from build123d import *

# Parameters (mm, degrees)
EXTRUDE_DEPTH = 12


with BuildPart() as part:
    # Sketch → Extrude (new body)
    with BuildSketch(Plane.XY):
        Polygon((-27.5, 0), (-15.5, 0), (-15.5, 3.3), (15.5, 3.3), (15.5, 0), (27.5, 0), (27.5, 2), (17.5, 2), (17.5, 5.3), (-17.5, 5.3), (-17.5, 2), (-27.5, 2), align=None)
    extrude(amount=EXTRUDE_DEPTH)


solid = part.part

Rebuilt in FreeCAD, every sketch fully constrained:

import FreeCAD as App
import Part
import Sketcher

doc = App.newDocument("Part")
body = doc.addObject("PartDesign::Body", "Body")

# Sketch on XY plane
sketch1 = body.newObject("Sketcher::SketchObject", "Sketch")
sketch1.AttachmentSupport = (doc.getObject("XY_Plane"), [""])
sketch1.MapMode = "FlatFace"
sketch1.addGeometry([
    Part.LineSegment(App.Vector(-27.5, 0, 0), App.Vector(-15.5, 0, 0)),  # 0
    Part.LineSegment(App.Vector(-15.5, 0, 0), App.Vector(-15.5, 3.3, 0)),  # 1
    Part.LineSegment(App.Vector(-15.5, 3.3, 0), App.Vector(15.5, 3.3, 0)),  # 2
    Part.LineSegment(App.Vector(15.5, 3.3, 0), App.Vector(15.5, 0, 0)),  # 3
    Part.LineSegment(App.Vector(15.5, 0, 0), App.Vector(27.5, 0, 0)),  # 4
    Part.LineSegment(App.Vector(27.5, 0, 0), App.Vector(27.5, 2, 0)),  # 5
    Part.LineSegment(App.Vector(27.5, 2, 0), App.Vector(17.5, 2, 0)),  # 6
    Part.LineSegment(App.Vector(17.5, 2, 0), App.Vector(17.5, 5.3, 0)),  # 7
    Part.LineSegment(App.Vector(17.5, 5.3, 0), App.Vector(-17.5, 5.3, 0)),  # 8
    Part.LineSegment(App.Vector(-17.5, 5.3, 0), App.Vector(-17.5, 2, 0)),  # 9
    Part.LineSegment(App.Vector(-17.5, 2, 0), App.Vector(-27.5, 2, 0)),  # 10
    Part.LineSegment(App.Vector(-27.5, 2, 0), App.Vector(-27.5, 0, 0)),  # 11
], False)
sketch1.addConstraint([
    Sketcher.Constraint("Coincident", 0, 2, 1, 1),
    Sketcher.Constraint("Coincident", 1, 2, 2, 1),
    Sketcher.Constraint("Coincident", 2, 2, 3, 1),
    Sketcher.Constraint("Coincident", 3, 2, 4, 1),
    Sketcher.Constraint("Coincident", 4, 2, 5, 1),
    Sketcher.Constraint("Coincident", 5, 2, 6, 1),
    Sketcher.Constraint("Coincident", 6, 2, 7, 1),
    Sketcher.Constraint("Coincident", 7, 2, 8, 1),
    Sketcher.Constraint("Coincident", 8, 2, 9, 1),
    Sketcher.Constraint("Coincident", 9, 2, 10, 1),
    Sketcher.Constraint("Coincident", 10, 2, 11, 1),
    Sketcher.Constraint("Coincident", 11, 2, 0, 1),
    Sketcher.Constraint("Horizontal", 0),
    Sketcher.Constraint("Vertical", 1),
    Sketcher.Constraint("Horizontal", 2),
    Sketcher.Constraint("Vertical", 3),
    Sketcher.Constraint("Horizontal", 4),
    Sketcher.Constraint("Vertical", 5),
    Sketcher.Constraint("Horizontal", 6),
    Sketcher.Constraint("Vertical", 7),
    Sketcher.Constraint("Horizontal", 8),
    Sketcher.Constraint("Vertical", 9),
    Sketcher.Constraint("Horizontal", 10),
    Sketcher.Constraint("Vertical", 11),
    Sketcher.Constraint("Symmetric", 0, 2, 3, 2, -1, 1),
    Sketcher.Constraint("Symmetric", 6, 2, 9, 2, -2),
    Sketcher.Constraint("Symmetric", 4, 2, 11, 2, -2),
    Sketcher.Constraint("Equal", 3, 7),
    Sketcher.Constraint("DistanceX", 0, 1, 0, 2, 12.0),
    Sketcher.Constraint("DistanceX", 2, 1, 2, 2, 31.0),
    Sketcher.Constraint("DistanceX", 6, 2, 6, 1, 10.0),
    Sketcher.Constraint("DistanceY", 5, 1, 5, 2, 2.0),
    Sketcher.Constraint("DistanceY", 1, 1, 1, 2, 3.3),
])
pad1 = body.newObject("PartDesign::Pad", "Pad")
pad1.Profile = sketch1
pad1.Length = 12

doc.recompute()
